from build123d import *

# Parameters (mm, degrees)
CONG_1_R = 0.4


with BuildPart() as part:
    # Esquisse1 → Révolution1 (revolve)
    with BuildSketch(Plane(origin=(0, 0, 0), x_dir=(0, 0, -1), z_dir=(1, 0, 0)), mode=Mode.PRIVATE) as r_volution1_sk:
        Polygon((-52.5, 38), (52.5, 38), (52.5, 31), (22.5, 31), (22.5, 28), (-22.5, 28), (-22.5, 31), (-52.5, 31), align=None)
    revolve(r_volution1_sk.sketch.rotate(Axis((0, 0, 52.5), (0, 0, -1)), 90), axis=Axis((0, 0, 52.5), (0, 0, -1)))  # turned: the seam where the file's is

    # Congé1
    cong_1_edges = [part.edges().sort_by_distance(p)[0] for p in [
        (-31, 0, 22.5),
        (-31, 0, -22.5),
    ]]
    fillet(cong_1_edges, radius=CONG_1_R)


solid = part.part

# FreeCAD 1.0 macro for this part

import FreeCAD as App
import Part
import Sketcher

V = App.Vector
Q = App.Units.Quantity


def edges_at(feature, points):
    """Names of the edges that pass closest to the given points."""
    edges = feature.Shape.Edges
    near = lambda p: min(range(len(edges)), key=lambda i: edges[i].distToShape(Part.Vertex(*p))[0])
    return sorted({f"Edge{near(p) + 1}" for p in points})


def add_polygon(sketch, points):
    """Adds a closed chain of lines whose ends are joined by coincident constraints."""
    first, n = sketch.GeometryCount, len(points)
    for a, b in zip(points, points[1:] + points[:1]):
        sketch.addGeometry(Part.LineSegment(App.Vector(*a, 0), App.Vector(*b, 0)), False)
    for i in range(n):
        sketch.addConstraint(Sketcher.Constraint("Coincident", first + i, 2, first + (i + 1) % n, 1))

doc = App.newDocument("Part")
body = doc.addObject("PartDesign::Body", "Body")

# Sketch on YZ plane
sketch1 = body.newObject("Sketcher::SketchObject", "Sketch")
sketch1.AttachmentSupport = (doc.getObject("YZ_Plane"), [""])
sketch1.MapMode = "FlatFace"
add_polygon(sketch1, [(38, -52.5), (38, 52.5), (31, 52.5), (31, 22.5), (28, 22.5), (28, -22.5), (31, -22.5), (31, -52.5)])  # lines 0-7
sketch1.addConstraint([
    Sketcher.Constraint("Vertical", 0),
    Sketcher.Constraint("Horizontal", 1),
    Sketcher.Constraint("Vertical", 2),
    Sketcher.Constraint("Horizontal", 3),
    Sketcher.Constraint("Vertical", 4),
    Sketcher.Constraint("Horizontal", 5),
    Sketcher.Constraint("Vertical", 6),
    Sketcher.Constraint("Horizontal", 7),
    Sketcher.Constraint("Symmetric", 2, 2, 5, 2, -1),
    Sketcher.Constraint("Equal", 2, 6),
    Sketcher.Constraint("DistanceX", 1, 2, 1, 1, Q("7 mm")),
    Sketcher.Constraint("DistanceX", 3, 2, 3, 1, Q("3 mm")),
    Sketcher.Constraint("DistanceY", 0, 1, 0, 2, Q("105 mm")),
    Sketcher.Constraint("DistanceY", 2, 2, 2, 1, Q("30 mm")),
    Sketcher.Constraint("DistanceX", -1, 1, 0, 2, Q("38 mm")),
])
revolution = body.newObject("PartDesign::Revolution", "Revolution")
revolution.Profile = sketch1
revolution.ReferenceAxis = (sketch1, ["V_Axis"])
revolution.Angle = 360
doc.recompute()

fillet = body.newObject("PartDesign::Fillet", "Fillet")
fillet.Base = (revolution, edges_at(revolution, [(-31, 0, 22.5), (-31, 0, -22.5)]))
fillet.Radius = 0.4

doc.recompute()
